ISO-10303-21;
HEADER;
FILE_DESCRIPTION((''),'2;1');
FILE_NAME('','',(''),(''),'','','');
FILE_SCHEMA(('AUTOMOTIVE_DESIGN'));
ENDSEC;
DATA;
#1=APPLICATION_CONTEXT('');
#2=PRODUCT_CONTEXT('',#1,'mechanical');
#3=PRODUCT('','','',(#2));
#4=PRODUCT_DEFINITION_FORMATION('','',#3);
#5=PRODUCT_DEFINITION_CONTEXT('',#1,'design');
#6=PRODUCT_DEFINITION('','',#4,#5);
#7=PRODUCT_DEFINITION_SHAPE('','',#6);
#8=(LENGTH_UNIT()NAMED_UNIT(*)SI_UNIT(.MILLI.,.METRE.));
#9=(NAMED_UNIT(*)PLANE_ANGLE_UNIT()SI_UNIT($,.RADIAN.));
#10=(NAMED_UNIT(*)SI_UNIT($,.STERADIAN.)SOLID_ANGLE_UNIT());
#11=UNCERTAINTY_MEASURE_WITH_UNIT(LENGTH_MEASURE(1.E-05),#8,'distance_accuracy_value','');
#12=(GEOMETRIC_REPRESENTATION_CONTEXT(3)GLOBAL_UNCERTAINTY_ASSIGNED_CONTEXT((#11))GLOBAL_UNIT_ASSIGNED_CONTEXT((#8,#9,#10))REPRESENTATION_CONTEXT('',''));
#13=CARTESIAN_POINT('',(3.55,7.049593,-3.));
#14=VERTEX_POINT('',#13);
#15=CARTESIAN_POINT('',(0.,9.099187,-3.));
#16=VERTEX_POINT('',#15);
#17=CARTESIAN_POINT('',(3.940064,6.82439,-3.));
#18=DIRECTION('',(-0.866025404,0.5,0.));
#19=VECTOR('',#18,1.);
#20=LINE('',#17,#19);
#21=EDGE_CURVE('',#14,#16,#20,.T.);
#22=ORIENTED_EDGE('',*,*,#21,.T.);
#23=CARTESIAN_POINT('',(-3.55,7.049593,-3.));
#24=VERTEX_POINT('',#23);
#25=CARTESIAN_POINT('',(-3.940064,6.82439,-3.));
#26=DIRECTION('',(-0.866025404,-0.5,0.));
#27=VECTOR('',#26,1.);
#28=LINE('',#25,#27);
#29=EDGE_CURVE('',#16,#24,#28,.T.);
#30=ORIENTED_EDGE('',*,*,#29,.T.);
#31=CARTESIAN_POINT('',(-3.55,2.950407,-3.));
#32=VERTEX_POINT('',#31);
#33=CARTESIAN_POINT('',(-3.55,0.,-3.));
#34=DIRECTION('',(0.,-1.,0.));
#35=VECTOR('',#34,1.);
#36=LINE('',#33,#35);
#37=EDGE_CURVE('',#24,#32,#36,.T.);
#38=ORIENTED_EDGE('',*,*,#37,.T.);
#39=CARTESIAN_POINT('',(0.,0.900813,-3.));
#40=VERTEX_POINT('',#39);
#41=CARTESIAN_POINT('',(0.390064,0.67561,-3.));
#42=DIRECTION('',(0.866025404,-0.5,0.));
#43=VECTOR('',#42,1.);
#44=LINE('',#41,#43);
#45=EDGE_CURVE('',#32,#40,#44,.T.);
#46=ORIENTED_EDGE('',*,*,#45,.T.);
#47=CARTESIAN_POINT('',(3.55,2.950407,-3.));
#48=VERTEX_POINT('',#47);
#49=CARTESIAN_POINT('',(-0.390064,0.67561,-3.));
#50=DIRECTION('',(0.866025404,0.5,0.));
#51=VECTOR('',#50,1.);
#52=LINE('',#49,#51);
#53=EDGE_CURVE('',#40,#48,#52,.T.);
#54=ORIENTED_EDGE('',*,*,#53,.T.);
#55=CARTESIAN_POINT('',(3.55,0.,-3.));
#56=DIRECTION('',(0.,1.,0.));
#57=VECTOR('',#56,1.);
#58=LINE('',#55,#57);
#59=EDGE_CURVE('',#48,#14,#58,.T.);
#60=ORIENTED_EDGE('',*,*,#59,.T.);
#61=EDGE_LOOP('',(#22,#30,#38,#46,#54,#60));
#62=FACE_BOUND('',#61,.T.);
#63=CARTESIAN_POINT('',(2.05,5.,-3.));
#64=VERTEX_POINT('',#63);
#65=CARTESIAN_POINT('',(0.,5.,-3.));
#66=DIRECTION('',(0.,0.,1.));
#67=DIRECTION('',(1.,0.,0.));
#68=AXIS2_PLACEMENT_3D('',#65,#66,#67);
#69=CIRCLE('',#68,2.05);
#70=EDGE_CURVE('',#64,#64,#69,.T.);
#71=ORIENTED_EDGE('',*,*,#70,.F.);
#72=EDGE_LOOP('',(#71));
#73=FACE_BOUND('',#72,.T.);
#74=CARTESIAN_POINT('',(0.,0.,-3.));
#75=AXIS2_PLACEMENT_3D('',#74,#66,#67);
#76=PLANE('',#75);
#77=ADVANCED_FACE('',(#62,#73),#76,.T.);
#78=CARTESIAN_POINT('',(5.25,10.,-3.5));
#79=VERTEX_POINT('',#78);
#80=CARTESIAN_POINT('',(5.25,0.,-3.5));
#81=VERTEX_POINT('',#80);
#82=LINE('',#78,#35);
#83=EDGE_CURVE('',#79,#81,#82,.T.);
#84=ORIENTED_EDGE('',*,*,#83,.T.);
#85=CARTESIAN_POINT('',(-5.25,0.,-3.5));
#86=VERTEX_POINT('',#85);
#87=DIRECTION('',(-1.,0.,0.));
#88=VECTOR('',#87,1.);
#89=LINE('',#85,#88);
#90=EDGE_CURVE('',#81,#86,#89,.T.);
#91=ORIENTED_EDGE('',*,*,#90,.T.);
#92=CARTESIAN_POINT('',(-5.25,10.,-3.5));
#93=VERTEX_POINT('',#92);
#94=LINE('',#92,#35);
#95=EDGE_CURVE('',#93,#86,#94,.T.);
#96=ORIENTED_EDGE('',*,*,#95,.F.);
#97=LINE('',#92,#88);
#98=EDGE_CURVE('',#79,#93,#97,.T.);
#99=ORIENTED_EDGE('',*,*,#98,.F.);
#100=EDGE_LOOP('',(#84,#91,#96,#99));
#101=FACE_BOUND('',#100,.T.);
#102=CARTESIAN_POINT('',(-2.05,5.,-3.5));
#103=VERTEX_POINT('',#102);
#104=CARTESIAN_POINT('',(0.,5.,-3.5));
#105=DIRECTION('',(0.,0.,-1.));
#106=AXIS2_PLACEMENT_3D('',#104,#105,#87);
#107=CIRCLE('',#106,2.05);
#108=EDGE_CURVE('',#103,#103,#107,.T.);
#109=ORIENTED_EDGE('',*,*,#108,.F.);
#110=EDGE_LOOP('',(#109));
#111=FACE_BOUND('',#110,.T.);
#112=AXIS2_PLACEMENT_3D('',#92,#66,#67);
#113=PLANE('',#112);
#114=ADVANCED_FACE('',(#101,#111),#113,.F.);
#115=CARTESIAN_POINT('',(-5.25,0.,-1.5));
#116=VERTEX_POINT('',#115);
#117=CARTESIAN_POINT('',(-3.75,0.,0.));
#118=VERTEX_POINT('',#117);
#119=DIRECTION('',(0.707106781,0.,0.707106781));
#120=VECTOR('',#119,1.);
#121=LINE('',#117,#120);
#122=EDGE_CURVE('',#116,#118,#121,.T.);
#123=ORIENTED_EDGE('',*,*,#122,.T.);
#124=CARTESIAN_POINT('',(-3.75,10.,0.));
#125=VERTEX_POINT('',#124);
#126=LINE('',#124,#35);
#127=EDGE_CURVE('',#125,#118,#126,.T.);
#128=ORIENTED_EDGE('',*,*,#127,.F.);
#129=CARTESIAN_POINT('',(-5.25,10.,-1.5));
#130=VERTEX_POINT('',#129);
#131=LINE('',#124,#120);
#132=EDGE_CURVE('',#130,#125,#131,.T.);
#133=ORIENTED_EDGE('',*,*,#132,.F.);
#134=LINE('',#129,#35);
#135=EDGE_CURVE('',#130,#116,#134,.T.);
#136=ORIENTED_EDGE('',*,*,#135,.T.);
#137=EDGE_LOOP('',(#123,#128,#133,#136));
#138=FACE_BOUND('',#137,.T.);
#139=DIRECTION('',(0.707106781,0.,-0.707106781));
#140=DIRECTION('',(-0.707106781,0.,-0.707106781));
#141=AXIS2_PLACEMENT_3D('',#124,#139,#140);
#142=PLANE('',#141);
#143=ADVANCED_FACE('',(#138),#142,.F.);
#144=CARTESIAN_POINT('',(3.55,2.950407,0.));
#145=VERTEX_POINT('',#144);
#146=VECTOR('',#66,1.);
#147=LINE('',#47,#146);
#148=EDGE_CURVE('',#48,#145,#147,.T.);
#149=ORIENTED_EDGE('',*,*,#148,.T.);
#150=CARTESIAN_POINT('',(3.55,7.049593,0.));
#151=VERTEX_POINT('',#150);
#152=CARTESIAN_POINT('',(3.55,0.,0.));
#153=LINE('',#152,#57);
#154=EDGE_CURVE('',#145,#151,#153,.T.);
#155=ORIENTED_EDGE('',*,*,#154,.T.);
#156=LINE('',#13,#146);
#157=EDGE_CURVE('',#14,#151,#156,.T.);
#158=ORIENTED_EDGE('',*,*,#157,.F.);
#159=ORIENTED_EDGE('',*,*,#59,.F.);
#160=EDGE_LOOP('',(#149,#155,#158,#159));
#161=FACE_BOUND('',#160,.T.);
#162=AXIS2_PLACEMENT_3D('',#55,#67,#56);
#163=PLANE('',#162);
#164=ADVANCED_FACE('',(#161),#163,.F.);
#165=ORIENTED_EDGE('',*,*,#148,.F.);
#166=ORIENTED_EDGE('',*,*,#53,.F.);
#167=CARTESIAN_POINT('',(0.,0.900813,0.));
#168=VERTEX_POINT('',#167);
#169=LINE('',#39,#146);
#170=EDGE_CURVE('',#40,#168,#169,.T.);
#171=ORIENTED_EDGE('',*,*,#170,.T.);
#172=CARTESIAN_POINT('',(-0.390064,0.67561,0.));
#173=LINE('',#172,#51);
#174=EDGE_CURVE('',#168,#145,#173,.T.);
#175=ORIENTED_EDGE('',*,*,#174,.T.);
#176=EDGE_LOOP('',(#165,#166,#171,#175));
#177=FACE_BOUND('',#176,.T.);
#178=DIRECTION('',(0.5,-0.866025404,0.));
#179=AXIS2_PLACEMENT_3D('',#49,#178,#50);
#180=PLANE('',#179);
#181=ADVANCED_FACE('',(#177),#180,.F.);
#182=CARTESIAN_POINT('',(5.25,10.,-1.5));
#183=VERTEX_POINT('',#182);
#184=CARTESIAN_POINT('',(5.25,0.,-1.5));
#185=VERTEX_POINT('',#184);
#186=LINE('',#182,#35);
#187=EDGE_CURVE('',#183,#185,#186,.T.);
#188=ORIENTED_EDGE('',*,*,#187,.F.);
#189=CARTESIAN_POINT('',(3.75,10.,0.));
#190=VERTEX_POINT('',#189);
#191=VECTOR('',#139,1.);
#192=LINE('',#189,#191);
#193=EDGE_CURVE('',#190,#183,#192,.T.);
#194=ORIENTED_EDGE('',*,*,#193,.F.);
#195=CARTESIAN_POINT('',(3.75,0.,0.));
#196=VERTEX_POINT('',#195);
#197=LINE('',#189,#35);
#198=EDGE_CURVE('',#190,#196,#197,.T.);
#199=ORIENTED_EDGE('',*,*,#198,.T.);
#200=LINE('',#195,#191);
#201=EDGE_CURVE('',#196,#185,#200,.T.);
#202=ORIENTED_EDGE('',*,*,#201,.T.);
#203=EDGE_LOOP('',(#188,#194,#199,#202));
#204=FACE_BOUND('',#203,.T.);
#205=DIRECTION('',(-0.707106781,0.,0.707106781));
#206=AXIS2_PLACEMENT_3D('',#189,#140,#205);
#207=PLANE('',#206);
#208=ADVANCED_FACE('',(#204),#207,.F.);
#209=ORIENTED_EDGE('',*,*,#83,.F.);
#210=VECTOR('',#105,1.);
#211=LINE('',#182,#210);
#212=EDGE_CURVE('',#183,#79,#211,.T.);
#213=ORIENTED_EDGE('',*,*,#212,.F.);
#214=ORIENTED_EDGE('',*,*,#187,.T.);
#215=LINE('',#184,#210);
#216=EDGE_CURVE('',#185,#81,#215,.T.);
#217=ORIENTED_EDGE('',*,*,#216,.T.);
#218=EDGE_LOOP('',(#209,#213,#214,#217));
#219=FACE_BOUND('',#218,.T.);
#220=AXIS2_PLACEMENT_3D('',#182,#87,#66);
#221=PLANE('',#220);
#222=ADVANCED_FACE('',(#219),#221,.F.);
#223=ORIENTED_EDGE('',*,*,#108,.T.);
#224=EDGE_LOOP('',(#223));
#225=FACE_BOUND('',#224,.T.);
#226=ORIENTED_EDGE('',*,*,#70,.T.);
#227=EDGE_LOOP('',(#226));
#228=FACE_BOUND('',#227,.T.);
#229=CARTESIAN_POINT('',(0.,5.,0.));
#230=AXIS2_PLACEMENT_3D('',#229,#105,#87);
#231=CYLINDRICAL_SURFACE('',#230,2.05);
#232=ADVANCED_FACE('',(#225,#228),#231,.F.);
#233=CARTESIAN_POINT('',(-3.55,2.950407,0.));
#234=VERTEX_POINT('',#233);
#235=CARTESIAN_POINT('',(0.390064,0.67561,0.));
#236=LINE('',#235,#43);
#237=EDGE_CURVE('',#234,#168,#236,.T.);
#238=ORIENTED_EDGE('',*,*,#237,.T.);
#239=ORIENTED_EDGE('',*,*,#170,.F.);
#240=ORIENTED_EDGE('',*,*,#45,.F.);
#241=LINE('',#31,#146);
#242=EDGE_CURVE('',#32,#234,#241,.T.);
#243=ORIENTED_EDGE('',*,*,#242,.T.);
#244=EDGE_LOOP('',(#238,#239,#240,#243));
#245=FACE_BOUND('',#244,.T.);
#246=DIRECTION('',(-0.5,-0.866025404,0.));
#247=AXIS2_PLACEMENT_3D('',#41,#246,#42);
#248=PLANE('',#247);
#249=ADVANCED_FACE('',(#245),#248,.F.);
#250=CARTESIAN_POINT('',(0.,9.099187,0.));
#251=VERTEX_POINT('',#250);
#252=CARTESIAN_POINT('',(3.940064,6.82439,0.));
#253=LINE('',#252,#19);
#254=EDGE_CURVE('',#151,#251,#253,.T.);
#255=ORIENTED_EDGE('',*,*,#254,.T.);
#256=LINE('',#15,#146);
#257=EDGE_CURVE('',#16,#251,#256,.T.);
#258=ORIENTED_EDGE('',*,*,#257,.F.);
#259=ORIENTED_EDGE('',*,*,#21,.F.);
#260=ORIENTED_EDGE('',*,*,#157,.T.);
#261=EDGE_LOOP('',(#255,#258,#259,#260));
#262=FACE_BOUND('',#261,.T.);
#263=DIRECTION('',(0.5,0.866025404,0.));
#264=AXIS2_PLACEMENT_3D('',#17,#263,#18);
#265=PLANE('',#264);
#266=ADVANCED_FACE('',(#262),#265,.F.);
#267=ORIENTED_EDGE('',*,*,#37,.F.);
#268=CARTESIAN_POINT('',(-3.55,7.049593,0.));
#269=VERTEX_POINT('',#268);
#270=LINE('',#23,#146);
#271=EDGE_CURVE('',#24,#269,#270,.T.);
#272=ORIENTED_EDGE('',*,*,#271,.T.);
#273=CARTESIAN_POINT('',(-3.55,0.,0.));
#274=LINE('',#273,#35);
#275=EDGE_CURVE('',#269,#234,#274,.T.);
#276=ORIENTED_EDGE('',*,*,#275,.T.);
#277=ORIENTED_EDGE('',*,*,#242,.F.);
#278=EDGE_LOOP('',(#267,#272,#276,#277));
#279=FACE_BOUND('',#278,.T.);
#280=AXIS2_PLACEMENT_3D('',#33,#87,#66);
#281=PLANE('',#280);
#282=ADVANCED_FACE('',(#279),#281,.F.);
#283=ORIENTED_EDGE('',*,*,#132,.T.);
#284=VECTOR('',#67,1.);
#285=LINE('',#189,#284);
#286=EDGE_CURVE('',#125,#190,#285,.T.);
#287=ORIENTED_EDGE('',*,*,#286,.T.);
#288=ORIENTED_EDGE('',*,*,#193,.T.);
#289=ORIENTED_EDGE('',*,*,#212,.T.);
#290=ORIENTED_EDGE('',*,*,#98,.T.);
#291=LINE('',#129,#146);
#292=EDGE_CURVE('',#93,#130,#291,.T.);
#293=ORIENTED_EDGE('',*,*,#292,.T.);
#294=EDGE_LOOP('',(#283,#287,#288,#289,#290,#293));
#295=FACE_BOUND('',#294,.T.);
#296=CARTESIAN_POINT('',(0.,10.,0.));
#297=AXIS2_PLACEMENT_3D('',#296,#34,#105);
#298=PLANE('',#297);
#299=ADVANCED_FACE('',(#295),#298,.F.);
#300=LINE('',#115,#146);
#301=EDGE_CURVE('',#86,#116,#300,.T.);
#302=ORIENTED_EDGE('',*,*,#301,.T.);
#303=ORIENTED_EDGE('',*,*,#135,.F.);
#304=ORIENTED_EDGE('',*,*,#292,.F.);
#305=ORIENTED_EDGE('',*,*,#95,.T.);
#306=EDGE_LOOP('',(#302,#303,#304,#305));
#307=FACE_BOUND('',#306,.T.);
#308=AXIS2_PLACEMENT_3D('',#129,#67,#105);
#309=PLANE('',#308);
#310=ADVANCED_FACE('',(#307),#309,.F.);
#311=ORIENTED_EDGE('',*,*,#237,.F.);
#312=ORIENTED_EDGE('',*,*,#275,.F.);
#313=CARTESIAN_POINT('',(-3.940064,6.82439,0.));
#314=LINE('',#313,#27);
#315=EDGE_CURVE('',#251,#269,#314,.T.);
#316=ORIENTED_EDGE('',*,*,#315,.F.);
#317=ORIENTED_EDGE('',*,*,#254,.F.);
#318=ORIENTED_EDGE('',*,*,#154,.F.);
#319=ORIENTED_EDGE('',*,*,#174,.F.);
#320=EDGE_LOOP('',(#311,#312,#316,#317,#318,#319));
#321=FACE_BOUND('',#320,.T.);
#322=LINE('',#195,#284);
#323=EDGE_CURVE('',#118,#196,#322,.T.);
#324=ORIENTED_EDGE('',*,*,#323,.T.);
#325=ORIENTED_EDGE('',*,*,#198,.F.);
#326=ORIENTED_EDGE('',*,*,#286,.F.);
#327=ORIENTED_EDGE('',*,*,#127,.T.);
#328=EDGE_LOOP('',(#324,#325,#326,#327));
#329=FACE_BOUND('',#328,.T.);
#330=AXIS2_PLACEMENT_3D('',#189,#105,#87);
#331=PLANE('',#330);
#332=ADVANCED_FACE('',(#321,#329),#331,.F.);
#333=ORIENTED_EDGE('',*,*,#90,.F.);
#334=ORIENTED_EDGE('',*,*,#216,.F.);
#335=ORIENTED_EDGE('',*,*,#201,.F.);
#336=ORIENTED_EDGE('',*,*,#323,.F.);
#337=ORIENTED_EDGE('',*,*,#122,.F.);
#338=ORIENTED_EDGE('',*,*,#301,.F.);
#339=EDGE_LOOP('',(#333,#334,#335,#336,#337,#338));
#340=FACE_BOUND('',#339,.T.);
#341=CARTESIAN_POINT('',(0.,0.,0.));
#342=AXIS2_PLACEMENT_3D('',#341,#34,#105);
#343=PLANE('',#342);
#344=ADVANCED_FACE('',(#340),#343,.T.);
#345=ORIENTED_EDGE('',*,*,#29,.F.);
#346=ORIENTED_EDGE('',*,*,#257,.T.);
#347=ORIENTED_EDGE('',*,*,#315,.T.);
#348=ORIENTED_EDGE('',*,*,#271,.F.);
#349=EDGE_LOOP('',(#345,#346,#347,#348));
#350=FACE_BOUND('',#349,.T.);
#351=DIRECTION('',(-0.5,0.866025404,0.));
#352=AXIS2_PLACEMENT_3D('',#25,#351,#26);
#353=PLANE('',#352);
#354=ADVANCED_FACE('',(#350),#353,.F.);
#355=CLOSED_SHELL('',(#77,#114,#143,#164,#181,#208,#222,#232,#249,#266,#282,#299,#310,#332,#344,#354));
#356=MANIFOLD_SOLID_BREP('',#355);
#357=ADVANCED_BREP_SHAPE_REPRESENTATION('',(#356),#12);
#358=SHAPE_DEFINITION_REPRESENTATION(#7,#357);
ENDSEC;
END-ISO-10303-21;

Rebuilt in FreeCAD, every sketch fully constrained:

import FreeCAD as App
import Part
import Sketcher
Q = App.Units.Quantity


def add_polygon(sketch, points):
    """Adds a closed chain of lines whose ends are joined by coincident constraints."""
    first, n = sketch.GeometryCount, len(points)
    for a, b in zip(points, points[1:] + points[:1]):
        sketch.addGeometry(Part.LineSegment(App.Vector(*a, 0), App.Vector(*b, 0)), False)
    for i in range(n):
        sketch.addConstraint(Sketcher.Constraint("Coincident", first + i, 2, first + (i + 1) % n, 1))

doc = App.newDocument("Part")
body = doc.addObject("PartDesign::Body", "Body")

# Sketch on XZ plane
sketch1 = body.newObject("Sketcher::SketchObject", "Sketch")
sketch1.AttachmentSupport = (doc.getObject("XZ_Plane"), [""])
sketch1.MapMode = "FlatFace"
add_polygon(sketch1, [(-3.8, 0), (3.8, 0), (5.2, -1.5), (5.2, -3.5), (-5.2, -3.5), (-5.2, -1.5)])  # lines 0-5
sketch1.addConstraint([
    Sketcher.Constraint("Horizontal", 0),
    Sketcher.Constraint("Vertical", 2),
    Sketcher.Constraint("Horizontal", 3),
    Sketcher.Constraint("Vertical", 4),
    Sketcher.Constraint("Symmetric", 0, 2, 5, 2, -1, 1),
    Sketcher.Constraint("Symmetric", 1, 2, 4, 2, -2),
    Sketcher.Constraint("Perpendicular", 1, 5),
    Sketcher.Constraint("DistanceY", 2, 2, 2, 1, 2.0),
    Sketcher.Constraint("DistanceX", 0, 1, 0, 2, 7.5),
    Sketcher.Constraint("DistanceX", 3, 2, 3, 1, 10.5),
])
pad1 = body.newObject("PartDesign::Pad", "Pad")
pad1.Profile = sketch1
pad1.Length = 10
pad1.Reversed = True

# Sketch on XY plane
sketch2 = body.newObject("Sketcher::SketchObject", "Sketch001")
sketch2.AttachmentSupport = (doc.getObject("XY_Plane"), [""])
sketch2.MapMode = "FlatFace"
add_polygon(sketch2, [(3.5, 7), (0, 9.1), (-3.5, 7), (-3.5, 3), (0, 0.9), (3.5, 3)])  # lines 0-5
sketch2.addConstraint([
    Sketcher.Constraint("Vertical", 2),
    Sketcher.Constraint("Vertical", 5),
    Sketcher.Constraint("Symmetric", 2, 2, 4, 2, -2),
    Sketcher.Constraint("PointOnObject", 0, 2, -2),
    Sketcher.Constraint("PointOnObject", 3, 2, -2),
    Sketcher.Constraint("Parallel", 0, 3),
    Sketcher.Constraint("Parallel", 1, 4),
    Sketcher.Constraint("Angle", 0, Q("150 deg")),
    Sketcher.Constraint("DistanceX", 2, 2, 4, 2, 7.1),
    Sketcher.Constraint("DistanceY", 2, 2, 2, 1, 4.099187),
    Sketcher.Constraint("DistanceY", -1, 1, 0, 2, 9.099187),
])
pocket1 = body.newObject("PartDesign::Pocket", "Pocket")
pocket1.Profile = sketch2
pocket1.Length = 3

# Sketch on XY plane
sketch3 = body.newObject("Sketcher::SketchObject", "Sketch002")
sketch3.AttachmentSupport = (doc.getObject("XY_Plane"), [""])
sketch3.MapMode = "FlatFace"
sketch3.AttachmentOffset = App.Placement(App.Vector(0, 0, -3.5), App.Rotation())
sketch3.addGeometry(Part.Circle(App.Vector(0, 5, 0), App.Vector(0, 0, 1), 2), False)
sketch3.addConstraint([
    Sketcher.Constraint("PointOnObject", 0, 3, -2),
    Sketcher.Constraint("Diameter", 0, 4.1),
    Sketcher.Constraint("DistanceY", -1, 1, 0, 3, 5.0),
])
pocket2 = body.newObject("PartDesign::Pocket", "Pocket001")
pocket2.Profile = sketch3
pocket2.Type = "ThroughAll"
pocket2.Reversed = True

doc.recompute()
